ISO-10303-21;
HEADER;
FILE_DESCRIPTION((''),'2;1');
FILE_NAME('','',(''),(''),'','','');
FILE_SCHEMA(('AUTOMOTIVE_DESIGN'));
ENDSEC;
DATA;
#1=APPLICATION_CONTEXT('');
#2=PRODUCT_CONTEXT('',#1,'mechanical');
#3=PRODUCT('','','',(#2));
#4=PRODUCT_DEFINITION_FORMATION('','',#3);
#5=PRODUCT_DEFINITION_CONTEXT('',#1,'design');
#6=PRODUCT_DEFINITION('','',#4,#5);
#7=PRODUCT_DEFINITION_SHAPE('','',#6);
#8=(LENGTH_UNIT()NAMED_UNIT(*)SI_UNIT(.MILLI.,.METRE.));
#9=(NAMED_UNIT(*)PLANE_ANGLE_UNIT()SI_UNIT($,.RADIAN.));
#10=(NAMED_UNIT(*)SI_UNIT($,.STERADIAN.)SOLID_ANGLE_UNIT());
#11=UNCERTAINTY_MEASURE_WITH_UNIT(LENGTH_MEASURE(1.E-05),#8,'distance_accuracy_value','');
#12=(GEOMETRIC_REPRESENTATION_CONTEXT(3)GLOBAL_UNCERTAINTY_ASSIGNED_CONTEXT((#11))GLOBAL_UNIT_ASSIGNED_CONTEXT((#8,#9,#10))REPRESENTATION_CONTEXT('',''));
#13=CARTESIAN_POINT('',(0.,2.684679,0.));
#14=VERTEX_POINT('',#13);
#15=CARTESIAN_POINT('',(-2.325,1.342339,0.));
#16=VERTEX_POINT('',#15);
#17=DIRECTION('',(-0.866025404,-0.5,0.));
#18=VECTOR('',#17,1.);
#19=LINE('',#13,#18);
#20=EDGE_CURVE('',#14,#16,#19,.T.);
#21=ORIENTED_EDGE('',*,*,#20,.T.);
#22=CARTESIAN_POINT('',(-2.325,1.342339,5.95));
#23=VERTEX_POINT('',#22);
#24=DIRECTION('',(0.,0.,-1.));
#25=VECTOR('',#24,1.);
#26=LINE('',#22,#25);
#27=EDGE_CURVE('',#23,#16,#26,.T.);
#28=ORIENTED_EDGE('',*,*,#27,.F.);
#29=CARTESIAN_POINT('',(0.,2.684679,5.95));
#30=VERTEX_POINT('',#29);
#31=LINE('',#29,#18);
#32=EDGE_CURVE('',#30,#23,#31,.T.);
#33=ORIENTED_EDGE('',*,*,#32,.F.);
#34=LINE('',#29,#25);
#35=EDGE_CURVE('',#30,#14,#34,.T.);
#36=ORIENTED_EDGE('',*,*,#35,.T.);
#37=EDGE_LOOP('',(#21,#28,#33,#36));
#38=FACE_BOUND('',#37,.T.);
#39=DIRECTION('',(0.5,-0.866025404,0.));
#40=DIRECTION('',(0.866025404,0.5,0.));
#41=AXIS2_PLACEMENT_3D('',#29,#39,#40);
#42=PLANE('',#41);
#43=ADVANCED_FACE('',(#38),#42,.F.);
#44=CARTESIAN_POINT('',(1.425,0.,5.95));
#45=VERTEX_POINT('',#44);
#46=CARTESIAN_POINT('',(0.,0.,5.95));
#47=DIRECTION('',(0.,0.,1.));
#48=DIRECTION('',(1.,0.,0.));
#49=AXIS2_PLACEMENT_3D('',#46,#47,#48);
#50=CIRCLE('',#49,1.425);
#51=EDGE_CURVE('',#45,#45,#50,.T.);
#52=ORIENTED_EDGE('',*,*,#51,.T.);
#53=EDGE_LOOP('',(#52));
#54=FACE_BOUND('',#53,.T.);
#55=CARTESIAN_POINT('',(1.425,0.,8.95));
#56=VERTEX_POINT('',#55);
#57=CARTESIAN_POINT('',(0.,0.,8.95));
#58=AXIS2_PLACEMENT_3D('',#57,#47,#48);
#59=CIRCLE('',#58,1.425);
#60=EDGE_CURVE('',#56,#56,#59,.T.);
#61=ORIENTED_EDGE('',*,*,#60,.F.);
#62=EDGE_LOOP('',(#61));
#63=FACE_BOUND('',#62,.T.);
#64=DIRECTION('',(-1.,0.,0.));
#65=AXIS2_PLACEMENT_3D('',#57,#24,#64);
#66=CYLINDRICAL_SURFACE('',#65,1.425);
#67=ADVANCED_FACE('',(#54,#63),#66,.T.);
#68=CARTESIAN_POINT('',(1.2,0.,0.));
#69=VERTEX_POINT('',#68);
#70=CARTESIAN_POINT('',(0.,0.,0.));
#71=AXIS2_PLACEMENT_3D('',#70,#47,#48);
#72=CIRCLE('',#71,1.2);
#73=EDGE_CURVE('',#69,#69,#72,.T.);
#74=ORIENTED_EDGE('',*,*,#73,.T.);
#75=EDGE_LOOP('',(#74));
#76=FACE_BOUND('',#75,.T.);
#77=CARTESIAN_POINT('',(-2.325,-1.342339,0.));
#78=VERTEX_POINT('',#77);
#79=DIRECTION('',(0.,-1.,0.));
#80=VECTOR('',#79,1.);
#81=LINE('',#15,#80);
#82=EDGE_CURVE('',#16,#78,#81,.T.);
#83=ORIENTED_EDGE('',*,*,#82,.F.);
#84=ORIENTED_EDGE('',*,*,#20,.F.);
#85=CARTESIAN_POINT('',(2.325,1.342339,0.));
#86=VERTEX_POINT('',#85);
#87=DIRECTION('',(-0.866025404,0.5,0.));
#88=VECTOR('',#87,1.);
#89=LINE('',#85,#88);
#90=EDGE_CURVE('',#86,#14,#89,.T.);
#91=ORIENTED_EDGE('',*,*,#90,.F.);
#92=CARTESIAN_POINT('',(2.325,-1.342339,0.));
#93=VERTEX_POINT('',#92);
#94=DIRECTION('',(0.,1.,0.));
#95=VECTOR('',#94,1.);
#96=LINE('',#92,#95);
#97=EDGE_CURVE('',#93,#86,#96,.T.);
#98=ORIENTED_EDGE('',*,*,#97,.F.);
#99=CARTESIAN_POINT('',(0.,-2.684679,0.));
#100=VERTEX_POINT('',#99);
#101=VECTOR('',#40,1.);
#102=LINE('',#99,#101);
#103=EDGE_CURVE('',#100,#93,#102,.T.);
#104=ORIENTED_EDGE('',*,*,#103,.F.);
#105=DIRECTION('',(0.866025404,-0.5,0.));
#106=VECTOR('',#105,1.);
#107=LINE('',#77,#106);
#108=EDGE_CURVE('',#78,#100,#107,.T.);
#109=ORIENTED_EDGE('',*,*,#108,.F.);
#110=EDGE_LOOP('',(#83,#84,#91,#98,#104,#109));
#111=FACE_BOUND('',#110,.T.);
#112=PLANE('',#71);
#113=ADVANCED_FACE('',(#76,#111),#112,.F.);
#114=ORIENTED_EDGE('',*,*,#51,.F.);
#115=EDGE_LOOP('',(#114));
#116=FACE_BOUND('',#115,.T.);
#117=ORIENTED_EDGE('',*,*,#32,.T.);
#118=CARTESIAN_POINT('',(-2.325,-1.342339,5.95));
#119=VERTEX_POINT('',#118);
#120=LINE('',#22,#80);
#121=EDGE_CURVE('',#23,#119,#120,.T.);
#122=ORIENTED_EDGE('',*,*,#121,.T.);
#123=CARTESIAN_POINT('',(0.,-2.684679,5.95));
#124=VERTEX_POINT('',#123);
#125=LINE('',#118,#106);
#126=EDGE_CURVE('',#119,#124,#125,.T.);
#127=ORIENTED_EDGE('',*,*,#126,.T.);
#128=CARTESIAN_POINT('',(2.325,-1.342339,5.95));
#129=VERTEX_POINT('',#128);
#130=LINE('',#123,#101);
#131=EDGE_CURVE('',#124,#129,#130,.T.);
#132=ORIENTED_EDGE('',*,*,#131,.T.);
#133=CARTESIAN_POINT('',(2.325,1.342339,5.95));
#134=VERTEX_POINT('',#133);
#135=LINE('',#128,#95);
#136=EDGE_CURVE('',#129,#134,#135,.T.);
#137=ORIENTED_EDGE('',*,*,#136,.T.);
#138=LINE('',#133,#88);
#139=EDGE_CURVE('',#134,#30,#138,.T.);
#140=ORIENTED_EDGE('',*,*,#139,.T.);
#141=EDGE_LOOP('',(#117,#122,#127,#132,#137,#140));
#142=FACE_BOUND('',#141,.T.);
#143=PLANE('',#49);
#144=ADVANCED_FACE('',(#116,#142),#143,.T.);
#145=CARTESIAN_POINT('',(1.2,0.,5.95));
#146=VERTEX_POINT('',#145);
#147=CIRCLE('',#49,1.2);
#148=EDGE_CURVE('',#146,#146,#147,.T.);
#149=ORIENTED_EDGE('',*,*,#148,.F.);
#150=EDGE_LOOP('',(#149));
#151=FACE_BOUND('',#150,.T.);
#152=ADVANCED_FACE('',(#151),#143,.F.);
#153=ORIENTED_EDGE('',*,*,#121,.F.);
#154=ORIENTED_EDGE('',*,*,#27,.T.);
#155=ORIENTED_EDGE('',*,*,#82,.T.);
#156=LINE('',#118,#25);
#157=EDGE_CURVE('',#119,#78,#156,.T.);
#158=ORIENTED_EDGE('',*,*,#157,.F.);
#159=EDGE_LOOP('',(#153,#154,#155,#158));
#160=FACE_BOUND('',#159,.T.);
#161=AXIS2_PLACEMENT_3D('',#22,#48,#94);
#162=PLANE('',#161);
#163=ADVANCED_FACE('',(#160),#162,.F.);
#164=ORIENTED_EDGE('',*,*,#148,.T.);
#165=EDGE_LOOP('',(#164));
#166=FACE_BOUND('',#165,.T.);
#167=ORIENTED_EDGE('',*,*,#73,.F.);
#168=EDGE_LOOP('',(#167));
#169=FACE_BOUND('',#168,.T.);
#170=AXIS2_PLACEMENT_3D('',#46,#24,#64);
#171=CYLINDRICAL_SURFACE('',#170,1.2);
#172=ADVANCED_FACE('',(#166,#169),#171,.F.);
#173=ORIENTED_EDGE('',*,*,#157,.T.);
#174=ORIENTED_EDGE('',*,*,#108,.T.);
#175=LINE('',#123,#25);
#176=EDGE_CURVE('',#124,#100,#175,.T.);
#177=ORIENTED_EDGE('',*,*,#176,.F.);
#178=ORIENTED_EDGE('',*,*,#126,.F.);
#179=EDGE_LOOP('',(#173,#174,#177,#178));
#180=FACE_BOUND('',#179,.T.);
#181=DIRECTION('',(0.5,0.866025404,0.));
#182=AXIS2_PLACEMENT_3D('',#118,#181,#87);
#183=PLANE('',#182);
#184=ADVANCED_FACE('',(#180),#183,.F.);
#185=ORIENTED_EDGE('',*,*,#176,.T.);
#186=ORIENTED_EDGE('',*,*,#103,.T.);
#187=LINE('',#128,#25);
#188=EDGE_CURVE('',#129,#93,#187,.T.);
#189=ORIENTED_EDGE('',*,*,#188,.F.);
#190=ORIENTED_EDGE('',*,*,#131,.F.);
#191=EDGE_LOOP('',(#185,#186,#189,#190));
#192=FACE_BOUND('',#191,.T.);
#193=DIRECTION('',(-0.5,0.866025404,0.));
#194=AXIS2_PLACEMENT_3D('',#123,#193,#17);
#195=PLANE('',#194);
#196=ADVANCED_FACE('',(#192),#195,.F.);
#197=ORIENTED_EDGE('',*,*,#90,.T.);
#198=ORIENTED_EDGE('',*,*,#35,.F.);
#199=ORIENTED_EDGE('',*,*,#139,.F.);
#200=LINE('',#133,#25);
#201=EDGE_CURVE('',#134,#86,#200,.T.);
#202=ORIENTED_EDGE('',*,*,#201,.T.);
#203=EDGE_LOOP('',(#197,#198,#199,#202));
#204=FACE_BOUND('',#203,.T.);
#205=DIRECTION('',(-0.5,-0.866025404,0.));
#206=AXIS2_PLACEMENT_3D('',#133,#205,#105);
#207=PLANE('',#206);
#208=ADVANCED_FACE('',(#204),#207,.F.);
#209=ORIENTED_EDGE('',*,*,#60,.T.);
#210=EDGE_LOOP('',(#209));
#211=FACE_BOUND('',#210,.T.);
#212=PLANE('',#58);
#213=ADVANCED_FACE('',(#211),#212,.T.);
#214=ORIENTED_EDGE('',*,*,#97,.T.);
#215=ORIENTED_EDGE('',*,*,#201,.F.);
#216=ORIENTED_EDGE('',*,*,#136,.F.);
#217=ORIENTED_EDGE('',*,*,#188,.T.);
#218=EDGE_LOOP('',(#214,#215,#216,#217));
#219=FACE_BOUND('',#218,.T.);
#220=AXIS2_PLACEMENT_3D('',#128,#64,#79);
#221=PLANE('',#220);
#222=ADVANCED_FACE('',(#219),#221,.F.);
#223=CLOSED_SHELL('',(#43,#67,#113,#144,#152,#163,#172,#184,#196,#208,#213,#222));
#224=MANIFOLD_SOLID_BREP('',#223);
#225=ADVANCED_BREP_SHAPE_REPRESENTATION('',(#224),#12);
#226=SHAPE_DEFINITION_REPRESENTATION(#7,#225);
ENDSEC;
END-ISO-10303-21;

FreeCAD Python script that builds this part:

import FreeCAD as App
import Part
import Sketcher

V = App.Vector
Q = App.Units.Quantity


def add_polygon(sketch, points):
    """Adds a closed chain of lines whose ends are joined by coincident constraints."""
    first, n = sketch.GeometryCount, len(points)
    for a, b in zip(points, points[1:] + points[:1]):
        sketch.addGeometry(Part.LineSegment(App.Vector(*a, 0), App.Vector(*b, 0)), False)
    for i in range(n):
        sketch.addConstraint(Sketcher.Constraint("Coincident", first + i, 2, first + (i + 1) % n, 1))

doc = App.newDocument("Part")
body = doc.addObject("PartDesign::Body", "Body")

# Sketch on XY plane
sketch1 = body.newObject("Sketcher::SketchObject", "Sketch")
sketch1.AttachmentSupport = (doc.getObject("XY_Plane"), [""])
sketch1.MapMode = "FlatFace"
add_polygon(sketch1, [(0, -2.7), (2.3, -1.3), (2.3, 1.3), (0, 2.7), (-2.3, 1.3), (-2.3, -1.3)])  # lines 0-5
sketch1.addGeometry(Part.Circle(V(0, 0, 0), V(0, 0, 1), 1.2), False)  # 6
sketch1.addConstraint([
    Sketcher.Constraint("Vertical", 1),
    Sketcher.Constraint("Vertical", 4),
    Sketcher.Constraint("Coincident", 6, 3, -1, 1),
    Sketcher.Constraint("Symmetric", 0, 2, 3, 2, -1, 1),
    Sketcher.Constraint("Symmetric", 2, 2, 5, 2, -1, 1),
    Sketcher.Constraint("PointOnObject", 2, 2, -2),
    Sketcher.Constraint("Parallel", 2, 5),
    Sketcher.Constraint("Horizontal", 1, 2, 3, 2),
    Sketcher.Constraint("Diameter", 6, 2.4),
    Sketcher.Constraint("Angle", 0, Q("30 deg")),
    Sketcher.Constraint("DistanceX", 3, 2, 1, 2, 4.65),
    Sketcher.Constraint("DistanceY", 1, 1, 1, 2, 2.684679),
])
pad1 = body.newObject("PartDesign::Pad", "Pad")
pad1.Profile = sketch1
pad1.Length = 5.95

# Sketch on XY plane
sketch2 = body.newObject("Sketcher::SketchObject", "Sketch001")
sketch2.AttachmentSupport = (doc.getObject("XY_Plane"), [""])
sketch2.MapMode = "FlatFace"
sketch2.AttachmentOffset = App.Placement(V(0, 0, 5.95), App.Rotation())
sketch2.addGeometry(Part.Circle(V(0, 0, 0), V(0, 0, 1), 1.4), False)
sketch2.addConstraint([
    Sketcher.Constraint("Coincident", 0, 3, -1, 1),
    Sketcher.Constraint("Diameter", 0, 2.85),
])
pad2 = body.newObject("PartDesign::Pad", "Pad001")
pad2.Profile = sketch2
pad2.Length = 3

doc.recompute()
